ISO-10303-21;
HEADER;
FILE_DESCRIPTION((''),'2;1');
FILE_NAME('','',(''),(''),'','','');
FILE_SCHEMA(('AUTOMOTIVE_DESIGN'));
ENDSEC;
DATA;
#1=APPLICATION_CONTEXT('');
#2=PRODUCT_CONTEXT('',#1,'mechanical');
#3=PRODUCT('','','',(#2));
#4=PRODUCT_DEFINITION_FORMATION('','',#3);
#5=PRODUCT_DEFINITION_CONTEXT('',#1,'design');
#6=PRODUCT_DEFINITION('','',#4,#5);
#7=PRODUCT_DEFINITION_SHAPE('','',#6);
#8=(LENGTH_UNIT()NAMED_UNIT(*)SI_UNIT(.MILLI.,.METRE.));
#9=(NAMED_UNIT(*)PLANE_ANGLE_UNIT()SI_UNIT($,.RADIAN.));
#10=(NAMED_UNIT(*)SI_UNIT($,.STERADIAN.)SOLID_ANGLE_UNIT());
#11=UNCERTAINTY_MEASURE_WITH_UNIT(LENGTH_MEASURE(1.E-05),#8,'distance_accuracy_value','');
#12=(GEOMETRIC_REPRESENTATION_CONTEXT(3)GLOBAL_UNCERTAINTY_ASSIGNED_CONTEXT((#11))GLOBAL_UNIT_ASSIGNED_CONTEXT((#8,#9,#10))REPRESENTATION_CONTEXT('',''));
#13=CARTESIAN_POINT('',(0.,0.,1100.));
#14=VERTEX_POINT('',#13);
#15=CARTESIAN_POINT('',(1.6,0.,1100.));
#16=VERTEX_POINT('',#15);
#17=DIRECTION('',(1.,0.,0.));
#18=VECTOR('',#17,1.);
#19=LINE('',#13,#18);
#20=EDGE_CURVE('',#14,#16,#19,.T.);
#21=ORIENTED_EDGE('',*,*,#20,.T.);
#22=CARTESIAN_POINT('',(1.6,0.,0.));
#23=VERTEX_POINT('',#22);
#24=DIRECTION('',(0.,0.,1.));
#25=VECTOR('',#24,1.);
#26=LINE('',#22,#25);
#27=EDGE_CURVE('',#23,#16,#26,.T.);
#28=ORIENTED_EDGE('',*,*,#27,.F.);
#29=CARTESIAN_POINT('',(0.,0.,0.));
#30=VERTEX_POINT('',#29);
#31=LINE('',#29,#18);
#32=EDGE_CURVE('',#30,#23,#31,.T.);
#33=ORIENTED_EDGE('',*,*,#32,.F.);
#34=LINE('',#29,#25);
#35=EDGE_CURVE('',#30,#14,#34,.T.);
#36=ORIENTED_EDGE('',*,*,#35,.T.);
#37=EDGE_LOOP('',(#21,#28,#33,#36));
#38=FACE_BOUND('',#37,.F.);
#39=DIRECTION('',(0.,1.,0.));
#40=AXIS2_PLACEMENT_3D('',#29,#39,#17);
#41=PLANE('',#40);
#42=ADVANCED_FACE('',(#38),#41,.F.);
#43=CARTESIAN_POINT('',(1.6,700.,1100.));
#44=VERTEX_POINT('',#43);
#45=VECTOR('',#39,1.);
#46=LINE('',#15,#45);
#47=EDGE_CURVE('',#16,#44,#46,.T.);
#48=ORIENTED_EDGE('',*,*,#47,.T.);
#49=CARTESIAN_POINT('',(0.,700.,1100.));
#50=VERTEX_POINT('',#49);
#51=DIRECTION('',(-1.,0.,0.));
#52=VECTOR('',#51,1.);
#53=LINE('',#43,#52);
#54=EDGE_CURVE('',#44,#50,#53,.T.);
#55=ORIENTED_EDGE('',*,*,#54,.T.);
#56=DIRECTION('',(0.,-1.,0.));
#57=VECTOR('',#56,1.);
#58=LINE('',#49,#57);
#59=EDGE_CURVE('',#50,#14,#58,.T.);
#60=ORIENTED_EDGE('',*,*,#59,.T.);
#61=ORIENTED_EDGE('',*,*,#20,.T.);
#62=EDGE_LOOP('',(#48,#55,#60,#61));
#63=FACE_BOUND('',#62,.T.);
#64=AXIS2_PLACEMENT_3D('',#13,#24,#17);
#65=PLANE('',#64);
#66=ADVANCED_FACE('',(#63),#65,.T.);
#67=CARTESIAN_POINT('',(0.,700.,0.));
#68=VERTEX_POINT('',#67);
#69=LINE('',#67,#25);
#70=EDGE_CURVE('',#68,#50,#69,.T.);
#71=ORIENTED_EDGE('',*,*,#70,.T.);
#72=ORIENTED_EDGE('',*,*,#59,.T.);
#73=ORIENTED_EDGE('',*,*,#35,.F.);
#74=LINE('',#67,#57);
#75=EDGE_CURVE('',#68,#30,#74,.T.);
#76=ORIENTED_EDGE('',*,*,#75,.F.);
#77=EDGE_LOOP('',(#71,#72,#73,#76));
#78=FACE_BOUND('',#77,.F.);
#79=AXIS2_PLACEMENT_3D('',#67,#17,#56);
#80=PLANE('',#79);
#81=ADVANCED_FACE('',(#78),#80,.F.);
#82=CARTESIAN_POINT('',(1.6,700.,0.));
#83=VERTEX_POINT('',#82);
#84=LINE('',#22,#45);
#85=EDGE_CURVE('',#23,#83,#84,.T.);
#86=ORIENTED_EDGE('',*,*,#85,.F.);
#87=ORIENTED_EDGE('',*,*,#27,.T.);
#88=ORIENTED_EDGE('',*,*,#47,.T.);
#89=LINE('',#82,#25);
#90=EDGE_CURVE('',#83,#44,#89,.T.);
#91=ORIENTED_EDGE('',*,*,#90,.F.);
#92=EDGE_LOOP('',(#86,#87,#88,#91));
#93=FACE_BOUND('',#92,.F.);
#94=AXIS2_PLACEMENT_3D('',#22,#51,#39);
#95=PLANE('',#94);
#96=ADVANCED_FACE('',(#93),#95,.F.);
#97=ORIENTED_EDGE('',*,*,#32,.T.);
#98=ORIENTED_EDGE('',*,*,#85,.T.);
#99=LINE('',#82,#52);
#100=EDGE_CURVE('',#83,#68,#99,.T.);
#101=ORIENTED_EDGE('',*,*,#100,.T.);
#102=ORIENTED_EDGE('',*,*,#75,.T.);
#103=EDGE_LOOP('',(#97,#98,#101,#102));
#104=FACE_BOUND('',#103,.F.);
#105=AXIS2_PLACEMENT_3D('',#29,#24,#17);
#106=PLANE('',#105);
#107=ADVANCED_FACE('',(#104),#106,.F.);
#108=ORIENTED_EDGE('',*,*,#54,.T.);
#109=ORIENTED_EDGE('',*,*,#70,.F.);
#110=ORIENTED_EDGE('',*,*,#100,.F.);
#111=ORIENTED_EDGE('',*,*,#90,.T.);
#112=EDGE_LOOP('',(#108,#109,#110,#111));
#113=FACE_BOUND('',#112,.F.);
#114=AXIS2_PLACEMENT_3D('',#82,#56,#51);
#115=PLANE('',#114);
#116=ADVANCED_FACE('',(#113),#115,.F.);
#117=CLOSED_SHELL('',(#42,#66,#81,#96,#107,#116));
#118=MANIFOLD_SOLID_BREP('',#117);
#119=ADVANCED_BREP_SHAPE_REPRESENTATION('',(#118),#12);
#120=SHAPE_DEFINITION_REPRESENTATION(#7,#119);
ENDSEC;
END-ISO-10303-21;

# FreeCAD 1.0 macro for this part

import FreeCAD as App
import Part
import Sketcher
Q = App.Units.Quantity

doc = App.newDocument("Part")
params = doc.addObject("Spreadsheet::Sheet", "Params")
for row, (alias, value) in enumerate([
    ("sketch1_height", "700 mm"),
    ("sketch1_width", "1.6 mm"),
    ("pad1_length", "1100 mm"),
], start=1):
    params.set(f"A{row}", alias)
    params.set(f"B{row}", "=" + value)
    params.setAlias(f"B{row}", alias)

body = doc.addObject("PartDesign::Body", "Body")

# Sketch on XY plane
sketch1 = body.newObject("Sketcher::SketchObject", "Sketch")
sketch1.AttachmentSupport = (doc.getObject("XY_Plane"), [""])
sketch1.MapMode = "FlatFace"
sketch1.addGeometry([
    Part.LineSegment(App.Vector(0, 700, 0), App.Vector(0, 0, 0)),
    Part.LineSegment(App.Vector(0, 0, 0), App.Vector(1.6, 0, 0)),
    Part.LineSegment(App.Vector(1.6, 0, 0), App.Vector(1.6, 700, 0)),
    Part.LineSegment(App.Vector(1.6, 700, 0), App.Vector(0, 700, 0)),
], False)
sketch1.addConstraint([
    Sketcher.Constraint("Coincident", 0, 2, 1, 1),
    Sketcher.Constraint("Coincident", 1, 2, 2, 1),
    Sketcher.Constraint("Coincident", 2, 2, 3, 1),
    Sketcher.Constraint("Coincident", 3, 2, 0, 1),
    Sketcher.Constraint("Vertical", 0),
    Sketcher.Constraint("Horizontal", 1),
    Sketcher.Constraint("Vertical", 2),
    Sketcher.Constraint("Horizontal", 3),
    Sketcher.Constraint("Coincident", 0, 2, -1, 1),
    Sketcher.Constraint("DistanceY", 0, 2, 0, 1, Q("700 mm")),
    Sketcher.Constraint("DistanceX", 1, 1, 1, 2, Q("1.6 mm")),
])
sketch1.setExpression("Constraints[9]", "Params.sketch1_height")
sketch1.setExpression("Constraints[10]", "Params.sketch1_width")
pad1 = body.newObject("PartDesign::Pad", "Pad")
pad1.Profile = sketch1
pad1.setExpression("Length", "Params.pad1_length")

doc.recompute()
